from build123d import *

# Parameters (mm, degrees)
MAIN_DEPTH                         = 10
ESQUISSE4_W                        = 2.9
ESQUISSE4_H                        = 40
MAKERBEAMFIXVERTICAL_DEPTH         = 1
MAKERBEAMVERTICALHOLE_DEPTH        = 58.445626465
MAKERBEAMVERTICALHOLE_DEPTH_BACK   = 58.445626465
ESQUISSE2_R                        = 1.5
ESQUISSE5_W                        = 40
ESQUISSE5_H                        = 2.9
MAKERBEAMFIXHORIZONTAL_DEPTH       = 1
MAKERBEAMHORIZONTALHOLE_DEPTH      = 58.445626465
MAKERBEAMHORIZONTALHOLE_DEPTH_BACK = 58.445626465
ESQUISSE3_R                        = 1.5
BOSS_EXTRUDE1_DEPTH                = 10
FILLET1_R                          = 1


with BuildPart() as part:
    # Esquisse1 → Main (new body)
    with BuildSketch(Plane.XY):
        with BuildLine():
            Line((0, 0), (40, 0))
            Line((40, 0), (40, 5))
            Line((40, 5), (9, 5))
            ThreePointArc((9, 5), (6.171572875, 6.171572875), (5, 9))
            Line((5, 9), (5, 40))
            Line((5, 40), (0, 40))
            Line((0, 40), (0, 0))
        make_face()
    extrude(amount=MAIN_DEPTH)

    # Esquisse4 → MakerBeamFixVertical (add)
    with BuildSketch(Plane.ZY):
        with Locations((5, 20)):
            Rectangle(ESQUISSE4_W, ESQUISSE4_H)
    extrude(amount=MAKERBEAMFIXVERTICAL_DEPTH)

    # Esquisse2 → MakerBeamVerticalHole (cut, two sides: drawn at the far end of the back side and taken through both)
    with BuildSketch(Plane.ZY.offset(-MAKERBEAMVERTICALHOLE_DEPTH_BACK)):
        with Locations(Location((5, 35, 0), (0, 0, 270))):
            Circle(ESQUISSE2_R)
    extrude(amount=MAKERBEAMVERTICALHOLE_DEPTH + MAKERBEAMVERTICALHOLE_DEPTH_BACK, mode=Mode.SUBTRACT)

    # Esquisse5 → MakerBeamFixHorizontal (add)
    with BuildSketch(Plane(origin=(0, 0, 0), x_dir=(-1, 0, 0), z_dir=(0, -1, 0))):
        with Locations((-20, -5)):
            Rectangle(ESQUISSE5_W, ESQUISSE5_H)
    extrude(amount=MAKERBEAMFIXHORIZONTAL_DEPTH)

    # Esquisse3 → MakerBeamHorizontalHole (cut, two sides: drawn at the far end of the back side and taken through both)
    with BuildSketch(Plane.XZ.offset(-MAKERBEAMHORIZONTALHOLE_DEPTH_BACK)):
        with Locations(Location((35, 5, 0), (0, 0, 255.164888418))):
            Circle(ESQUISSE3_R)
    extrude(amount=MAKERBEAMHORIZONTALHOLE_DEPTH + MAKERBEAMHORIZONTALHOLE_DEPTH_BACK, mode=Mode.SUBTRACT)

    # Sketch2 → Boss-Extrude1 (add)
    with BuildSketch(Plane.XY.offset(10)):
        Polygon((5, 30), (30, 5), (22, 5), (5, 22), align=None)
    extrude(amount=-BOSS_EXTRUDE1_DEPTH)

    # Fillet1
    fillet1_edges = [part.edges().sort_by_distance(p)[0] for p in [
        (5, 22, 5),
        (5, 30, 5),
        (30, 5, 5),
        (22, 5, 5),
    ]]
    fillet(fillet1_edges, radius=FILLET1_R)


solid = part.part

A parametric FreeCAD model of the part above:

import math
import FreeCAD as App
import Part
import Sketcher

V = App.Vector
Q = App.Units.Quantity


def edges_at(feature, points):
    """Names of the edges that pass closest to the given points."""
    edges = feature.Shape.Edges
    near = lambda p: min(range(len(edges)), key=lambda i: edges[i].distToShape(Part.Vertex(*p))[0])
    return sorted({f"Edge{near(p) + 1}" for p in points})


def add_polygon(sketch, points):
    """Adds a closed chain of lines whose ends are joined by coincident constraints."""
    first, n = sketch.GeometryCount, len(points)
    for a, b in zip(points, points[1:] + points[:1]):
        sketch.addGeometry(Part.LineSegment(App.Vector(*a, 0), App.Vector(*b, 0)), False)
    for i in range(n):
        sketch.addConstraint(Sketcher.Constraint("Coincident", first + i, 2, first + (i + 1) % n, 1))

doc = App.newDocument("Part")
body = doc.addObject("PartDesign::Body", "Body")

# Sketch on XY plane
sketch1 = body.newObject("Sketcher::SketchObject", "Sketch")
sketch1.AttachmentSupport = (doc.getObject("XY_Plane"), [""])
sketch1.MapMode = "FlatFace"
sketch1.addGeometry([
    Part.LineSegment(V(0, 0, 0), V(40, 0, 0)),  # 0
    Part.LineSegment(V(40, 0, 0), V(40, 5, 0)),  # 1
    Part.LineSegment(V(40, 5, 0), V(9, 5, 0)),  # 2
    Part.ArcOfCircle(Part.Circle(V(9, 9, 0), V(0, 0, 1), 4), math.radians(180), math.radians(270)),  # 3
    Part.LineSegment(V(5, 9, 0), V(5, 40, 0)),  # 4
    Part.LineSegment(V(5, 40, 0), V(0, 40, 0)),  # 5
    Part.LineSegment(V(0, 40, 0), V(0, 0, 0)),  # 6
], False)
sketch1.addConstraint([
    Sketcher.Constraint("Coincident", 0, 2, 1, 1),
    Sketcher.Constraint("Coincident", 1, 2, 2, 1),
    Sketcher.Constraint("Tangent", 2, 2, 3, 2),
    Sketcher.Constraint("Tangent", 3, 1, 4, 1),
    Sketcher.Constraint("Coincident", 4, 2, 5, 1),
    Sketcher.Constraint("Coincident", 5, 2, 6, 1),
    Sketcher.Constraint("Coincident", 6, 2, 0, 1),
    Sketcher.Constraint("Horizontal", 0),
    Sketcher.Constraint("Vertical", 1),
    Sketcher.Constraint("Horizontal", 2),
    Sketcher.Constraint("Vertical", 4),
    Sketcher.Constraint("Horizontal", 5),
    Sketcher.Constraint("Vertical", 6),
    Sketcher.Constraint("Coincident", 6, 2, -1, 1),
    Sketcher.Constraint("Equal", 5, 1),
    Sketcher.Constraint("Equal", 2, 4),
    Sketcher.Constraint("Radius", 3, Q("4 mm")),
    Sketcher.Constraint("DistanceX", 0, 1, 0, 2, Q("40 mm")),
    Sketcher.Constraint("DistanceX", 2, 2, 2, 1, Q("31 mm")),
])
pad1 = body.newObject("PartDesign::Pad", "Pad")
pad1.Profile = sketch1
pad1.Length = 10

# Sketch on YZ plane
sketch2 = body.newObject("Sketcher::SketchObject", "Sketch001")
sketch2.AttachmentSupport = (doc.getObject("YZ_Plane"), [""])
sketch2.MapMode = "FlatFace"
add_polygon(sketch2, [(40, 3.5), (0, 3.5), (0, 6.5), (40, 6.5)])  # lines 0-3
sketch2.addConstraint([
    Sketcher.Constraint("Horizontal", 0),
    Sketcher.Constraint("Vertical", 1),
    Sketcher.Constraint("Horizontal", 2),
    Sketcher.Constraint("Vertical", 3),
    Sketcher.Constraint("PointOnObject", 0, 2, -2),
    Sketcher.Constraint("DistanceX", 0, 2, 0, 1, Q("40 mm")),
    Sketcher.Constraint("DistanceY", 1, 1, 1, 2, Q("2.9 mm")),
    Sketcher.Constraint("DistanceY", -1, 1, 0, 2, Q("3.55 mm")),
])
pad2 = body.newObject("PartDesign::Pad", "Pad001")
pad2.Profile = sketch2
pad2.Length = 1
pad2.Reversed = True

# Sketch on YZ plane
sketch3 = body.newObject("Sketcher::SketchObject", "Sketch002")
sketch3.AttachmentSupport = (doc.getObject("YZ_Plane"), [""])
sketch3.MapMode = "FlatFace"
sketch3.addGeometry(Part.Circle(V(35, 5, 0), V(0, 0, 1), 1.5), False)
sketch3.addConstraint([
    Sketcher.Constraint("Diameter", 0, Q("3 mm")),
    Sketcher.Constraint("DistanceX", -1, 1, 0, 3, Q("35 mm")),
    Sketcher.Constraint("DistanceY", -1, 1, 0, 3, Q("5 mm")),
])
pocket1 = body.newObject("PartDesign::Pocket", "Pocket")
pocket1.Profile = sketch3
pocket1.Type = "ThroughAll"
pocket1.Midplane = True

# Sketch on XZ plane
sketch4 = body.newObject("Sketcher::SketchObject", "Sketch003")
sketch4.AttachmentSupport = (doc.getObject("XZ_Plane"), [""])
sketch4.MapMode = "FlatFace"
add_polygon(sketch4, [(40, 3.5), (40, 6.5), (0, 6.5), (0, 3.5)])  # lines 0-3
sketch4.addConstraint([
    Sketcher.Constraint("Vertical", 0),
    Sketcher.Constraint("Horizontal", 1),
    Sketcher.Constraint("Vertical", 2),
    Sketcher.Constraint("Horizontal", 3),
    Sketcher.Constraint("PointOnObject", 1, 2, -2),
    Sketcher.Constraint("DistanceX", 1, 2, 1, 1, Q("40 mm")),
    Sketcher.Constraint("DistanceY", 0, 1, 0, 2, Q("2.9 mm")),
    Sketcher.Constraint("DistanceY", -1, 1, 0, 2, Q("6.45 mm")),
])
pad3 = body.newObject("PartDesign::Pad", "Pad002")
pad3.Profile = sketch4
pad3.Length = 1

# Sketch on XZ plane
sketch5 = body.newObject("Sketcher::SketchObject", "Sketch004")
sketch5.AttachmentSupport = (doc.getObject("XZ_Plane"), [""])
sketch5.MapMode = "FlatFace"
sketch5.addGeometry(Part.Circle(V(35, 5, 0), V(0, 0, 1), 1.5), False)
sketch5.addConstraint([
    Sketcher.Constraint("Diameter", 0, Q("3 mm")),
    Sketcher.Constraint("DistanceX", -1, 1, 0, 3, Q("35 mm")),
    Sketcher.Constraint("DistanceY", -1, 1, 0, 3, Q("5 mm")),
])
pocket2 = body.newObject("PartDesign::Pocket", "Pocket001")
pocket2.Profile = sketch5
pocket2.Type = "ThroughAll"
pocket2.Midplane = True

# Sketch on XY plane
sketch6 = body.newObject("Sketcher::SketchObject", "Sketch005")
sketch6.AttachmentSupport = (doc.getObject("XY_Plane"), [""])
sketch6.MapMode = "FlatFace"
sketch6.AttachmentOffset = App.Placement(V(0, 0, 10), App.Rotation())
add_polygon(sketch6, [(30, 5), (5, 30), (5, 22), (22, 5)])  # lines 0-3
sketch6.addConstraint([
    Sketcher.Constraint("Vertical", 1),
    Sketcher.Constraint("Horizontal", 3),
    Sketcher.Constraint("Parallel", 0, 2),
    Sketcher.Constraint("Equal", 3, 1),
    Sketcher.Constraint("DistanceX", 3, 1, 3, 2, Q("8 mm")),
    Sketcher.Constraint("DistanceX", -1, 1, 0, 2, Q("5 mm")),
    Sketcher.Constraint("DistanceY", -1, 1, 0, 2, Q("30 mm")),
    Sketcher.Constraint("DistanceX", -1, 1, 2, 2, Q("22 mm")),
])
pad4 = body.newObject("PartDesign::Pad", "Pad003")
pad4.Profile = sketch6
pad4.Length = 10
pad4.Reversed = True
doc.recompute()

fillet = body.newObject("PartDesign::Fillet", "Fillet")
fillet.Base = (pad4, edges_at(pad4, [
    (5, 22, 5),
    (5, 30, 5),
    (30, 5, 5),
    (22, 5, 5),
]))
fillet.Radius = 1

doc.recompute()
